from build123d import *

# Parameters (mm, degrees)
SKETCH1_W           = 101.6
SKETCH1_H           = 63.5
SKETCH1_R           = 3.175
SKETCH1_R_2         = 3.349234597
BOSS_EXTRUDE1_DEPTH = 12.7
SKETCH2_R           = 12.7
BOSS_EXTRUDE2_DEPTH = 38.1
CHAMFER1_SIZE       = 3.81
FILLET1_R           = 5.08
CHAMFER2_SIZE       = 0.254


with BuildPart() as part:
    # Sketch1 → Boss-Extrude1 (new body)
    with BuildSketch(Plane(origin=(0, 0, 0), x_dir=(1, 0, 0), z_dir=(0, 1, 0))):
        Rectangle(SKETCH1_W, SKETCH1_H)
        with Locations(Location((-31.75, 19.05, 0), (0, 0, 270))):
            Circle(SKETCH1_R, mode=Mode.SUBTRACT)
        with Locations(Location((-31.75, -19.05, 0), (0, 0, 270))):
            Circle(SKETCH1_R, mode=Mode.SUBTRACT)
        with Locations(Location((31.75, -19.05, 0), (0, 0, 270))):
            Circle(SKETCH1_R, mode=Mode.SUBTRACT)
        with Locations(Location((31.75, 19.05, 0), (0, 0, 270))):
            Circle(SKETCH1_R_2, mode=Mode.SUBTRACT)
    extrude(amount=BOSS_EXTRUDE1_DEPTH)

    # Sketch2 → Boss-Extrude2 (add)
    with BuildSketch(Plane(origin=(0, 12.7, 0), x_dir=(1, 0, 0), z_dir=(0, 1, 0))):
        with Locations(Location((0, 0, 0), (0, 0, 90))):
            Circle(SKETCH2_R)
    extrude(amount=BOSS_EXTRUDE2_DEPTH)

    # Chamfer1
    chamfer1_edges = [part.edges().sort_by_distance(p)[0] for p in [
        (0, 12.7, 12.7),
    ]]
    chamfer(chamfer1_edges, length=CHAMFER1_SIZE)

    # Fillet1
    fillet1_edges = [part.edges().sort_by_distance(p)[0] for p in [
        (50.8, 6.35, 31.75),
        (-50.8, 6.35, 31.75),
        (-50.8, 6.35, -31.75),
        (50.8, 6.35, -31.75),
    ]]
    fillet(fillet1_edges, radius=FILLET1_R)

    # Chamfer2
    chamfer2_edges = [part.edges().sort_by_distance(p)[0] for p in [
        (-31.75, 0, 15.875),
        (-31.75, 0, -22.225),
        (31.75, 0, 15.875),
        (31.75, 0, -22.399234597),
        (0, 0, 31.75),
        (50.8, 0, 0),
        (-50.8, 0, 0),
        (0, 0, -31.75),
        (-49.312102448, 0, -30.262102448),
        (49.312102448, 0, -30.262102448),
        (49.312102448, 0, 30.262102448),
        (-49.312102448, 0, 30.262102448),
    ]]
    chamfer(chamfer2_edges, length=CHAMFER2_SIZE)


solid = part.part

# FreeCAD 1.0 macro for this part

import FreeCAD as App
import Part
import Sketcher

V = App.Vector
Q = App.Units.Quantity


def edges_at(feature, points):
    """Names of the edges that pass closest to the given points."""
    edges = feature.Shape.Edges
    near = lambda p: min(range(len(edges)), key=lambda i: edges[i].distToShape(Part.Vertex(*p))[0])
    return sorted({f"Edge{near(p) + 1}" for p in points})

doc = App.newDocument("Part")
body = doc.addObject("PartDesign::Body", "Body")

# Sketch on XZ plane
sketch1 = body.newObject("Sketcher::SketchObject", "Sketch")
sketch1.AttachmentSupport = (doc.getObject("XZ_Plane"), [""])
sketch1.MapMode = "FlatFace"
sketch1.addGeometry(Part.LineSegment(V(-50.8, -31.75, 0), V(-50.8, 31.75, 0)), False)
sketch1.addGeometry(Part.LineSegment(V(-50.8, 31.75, 0), V(50.8, 31.75, 0)), False)
sketch1.addGeometry(Part.LineSegment(V(50.8, 31.75, 0), V(50.8, -31.75, 0)), False)
sketch1.addGeometry(Part.LineSegment(V(50.8, -31.75, 0), V(-50.8, -31.75, 0)), False)
sketch1.addGeometry(Part.Circle(V(-31.75, 19.05, 0), V(0, 0, 1), 3.175), False)
sketch1.addGeometry(Part.Circle(V(31.75, 19.05, 0), V(0, 0, 1), 3.175), False)
sketch1.addGeometry(Part.Circle(V(-31.75, -19.05, 0), V(0, 0, 1), 3.175), False)
sketch1.addGeometry(Part.Circle(V(31.75, -19.05, 0), V(0, 0, 1), 3.349235), False)
sketch1.addConstraint(Sketcher.Constraint("Coincident", 0, 2, 1, 1))
sketch1.addConstraint(Sketcher.Constraint("Coincident", 1, 2, 2, 1))
sketch1.addConstraint(Sketcher.Constraint("Coincident", 2, 2, 3, 1))
sketch1.addConstraint(Sketcher.Constraint("Coincident", 3, 2, 0, 1))
sketch1.addConstraint(Sketcher.Constraint("Vertical", 0))
sketch1.addConstraint(Sketcher.Constraint("Horizontal", 1))
sketch1.addConstraint(Sketcher.Constraint("Vertical", 2))
sketch1.addConstraint(Sketcher.Constraint("Horizontal", 3))
sketch1.addConstraint(Sketcher.Constraint("Equal", 4, 5))
sketch1.addConstraint(Sketcher.Constraint("Equal", 5, 6))
sketch1.addConstraint(Sketcher.Constraint("Symmetric", 5, 3, 6, 3, -1, 1))
sketch1.addConstraint(Sketcher.Constraint("Symmetric", 4, 3, 7, 3, -1, 1))
sketch1.addConstraint(Sketcher.Constraint("Symmetric", 0, 2, 2, 2, -1, 1))
sketch1.addConstraint(Sketcher.Constraint("Symmetric", 4, 3, 5, 3, -2))
sketch1.addConstraint(Sketcher.Constraint("Diameter", 4, Q("0.25 in")))
sketch1.addConstraint(Sketcher.Constraint("DistanceX", 1, 1, 1, 2, Q("4 in")))
sketch1.addConstraint(Sketcher.Constraint("DistanceY", 0, 1, 0, 2, Q("2.5 in")))
sketch1.addConstraint(Sketcher.Constraint("DistanceY", 6, 3, 0, 2, Q("2 in")))
sketch1.addConstraint(Sketcher.Constraint("DistanceX", 4, 3, 5, 3, Q("2.5 in")))
sketch1.addConstraint(Sketcher.Constraint("Diameter", 7, Q("6.698469 mm")))
pad1 = body.newObject("PartDesign::Pad", "Pad")
pad1.Profile = sketch1
pad1.Length = Q("0.5 in")
pad1.Reversed = True

# Sketch on XZ plane
sketch2 = body.newObject("Sketcher::SketchObject", "Sketch001")
sketch2.AttachmentSupport = (doc.getObject("XZ_Plane"), [""])
sketch2.MapMode = "FlatFace"
sketch2.AttachmentOffset = App.Placement(V(0, 0, -0.5 * 25.4), App.Rotation())
sketch2.addGeometry(Part.Circle(V(0, 0, 0), V(0, 0, 1), 12.7), False)
sketch2.addConstraint(Sketcher.Constraint("Coincident", 0, 3, -1, 1))
sketch2.addConstraint(Sketcher.Constraint("Diameter", 0, Q("1 in")))
pad2 = body.newObject("PartDesign::Pad", "Pad001")
pad2.Profile = sketch2
pad2.Length = Q("1.5 in")
pad2.Reversed = True
doc.recompute()

chamfer = body.newObject("PartDesign::Chamfer", "Chamfer")
chamfer.Base = (pad2, edges_at(pad2, [(0, 12.7, 12.7)]))
chamfer.Size = Q("0.15 in")
doc.recompute()

fillet = body.newObject("PartDesign::Fillet", "Fillet")
fillet.Base = (chamfer, edges_at(chamfer, [
    (50.8, 6.35, 31.75),
    (-50.8, 6.35, 31.75),
    (-50.8, 6.35, -31.75),
    (50.8, 6.35, -31.75),
]))
fillet.Radius = Q("0.2 in")
doc.recompute()

chamfer2 = body.newObject("PartDesign::Chamfer", "Chamfer001")
chamfer2.Base = (fillet, edges_at(fillet, [
    (-31.75, 0, 15.875),
    (-31.75, 0, -22.225),
    (31.75, 0, 15.875),
    (31.75, 0, -22.399),
    (0, 0, 31.75),
    (50.8, 0, 0),
    (-50.8, 0, 0),
    (0, 0, -31.75),
    (-49.312, 0, -30.262),
    (49.312, 0, -30.262),
    (49.312, 0, 30.262),
    (-49.312, 0, 30.262),
]))
chamfer2.Size = Q("0.01 in")

doc.recompute()
